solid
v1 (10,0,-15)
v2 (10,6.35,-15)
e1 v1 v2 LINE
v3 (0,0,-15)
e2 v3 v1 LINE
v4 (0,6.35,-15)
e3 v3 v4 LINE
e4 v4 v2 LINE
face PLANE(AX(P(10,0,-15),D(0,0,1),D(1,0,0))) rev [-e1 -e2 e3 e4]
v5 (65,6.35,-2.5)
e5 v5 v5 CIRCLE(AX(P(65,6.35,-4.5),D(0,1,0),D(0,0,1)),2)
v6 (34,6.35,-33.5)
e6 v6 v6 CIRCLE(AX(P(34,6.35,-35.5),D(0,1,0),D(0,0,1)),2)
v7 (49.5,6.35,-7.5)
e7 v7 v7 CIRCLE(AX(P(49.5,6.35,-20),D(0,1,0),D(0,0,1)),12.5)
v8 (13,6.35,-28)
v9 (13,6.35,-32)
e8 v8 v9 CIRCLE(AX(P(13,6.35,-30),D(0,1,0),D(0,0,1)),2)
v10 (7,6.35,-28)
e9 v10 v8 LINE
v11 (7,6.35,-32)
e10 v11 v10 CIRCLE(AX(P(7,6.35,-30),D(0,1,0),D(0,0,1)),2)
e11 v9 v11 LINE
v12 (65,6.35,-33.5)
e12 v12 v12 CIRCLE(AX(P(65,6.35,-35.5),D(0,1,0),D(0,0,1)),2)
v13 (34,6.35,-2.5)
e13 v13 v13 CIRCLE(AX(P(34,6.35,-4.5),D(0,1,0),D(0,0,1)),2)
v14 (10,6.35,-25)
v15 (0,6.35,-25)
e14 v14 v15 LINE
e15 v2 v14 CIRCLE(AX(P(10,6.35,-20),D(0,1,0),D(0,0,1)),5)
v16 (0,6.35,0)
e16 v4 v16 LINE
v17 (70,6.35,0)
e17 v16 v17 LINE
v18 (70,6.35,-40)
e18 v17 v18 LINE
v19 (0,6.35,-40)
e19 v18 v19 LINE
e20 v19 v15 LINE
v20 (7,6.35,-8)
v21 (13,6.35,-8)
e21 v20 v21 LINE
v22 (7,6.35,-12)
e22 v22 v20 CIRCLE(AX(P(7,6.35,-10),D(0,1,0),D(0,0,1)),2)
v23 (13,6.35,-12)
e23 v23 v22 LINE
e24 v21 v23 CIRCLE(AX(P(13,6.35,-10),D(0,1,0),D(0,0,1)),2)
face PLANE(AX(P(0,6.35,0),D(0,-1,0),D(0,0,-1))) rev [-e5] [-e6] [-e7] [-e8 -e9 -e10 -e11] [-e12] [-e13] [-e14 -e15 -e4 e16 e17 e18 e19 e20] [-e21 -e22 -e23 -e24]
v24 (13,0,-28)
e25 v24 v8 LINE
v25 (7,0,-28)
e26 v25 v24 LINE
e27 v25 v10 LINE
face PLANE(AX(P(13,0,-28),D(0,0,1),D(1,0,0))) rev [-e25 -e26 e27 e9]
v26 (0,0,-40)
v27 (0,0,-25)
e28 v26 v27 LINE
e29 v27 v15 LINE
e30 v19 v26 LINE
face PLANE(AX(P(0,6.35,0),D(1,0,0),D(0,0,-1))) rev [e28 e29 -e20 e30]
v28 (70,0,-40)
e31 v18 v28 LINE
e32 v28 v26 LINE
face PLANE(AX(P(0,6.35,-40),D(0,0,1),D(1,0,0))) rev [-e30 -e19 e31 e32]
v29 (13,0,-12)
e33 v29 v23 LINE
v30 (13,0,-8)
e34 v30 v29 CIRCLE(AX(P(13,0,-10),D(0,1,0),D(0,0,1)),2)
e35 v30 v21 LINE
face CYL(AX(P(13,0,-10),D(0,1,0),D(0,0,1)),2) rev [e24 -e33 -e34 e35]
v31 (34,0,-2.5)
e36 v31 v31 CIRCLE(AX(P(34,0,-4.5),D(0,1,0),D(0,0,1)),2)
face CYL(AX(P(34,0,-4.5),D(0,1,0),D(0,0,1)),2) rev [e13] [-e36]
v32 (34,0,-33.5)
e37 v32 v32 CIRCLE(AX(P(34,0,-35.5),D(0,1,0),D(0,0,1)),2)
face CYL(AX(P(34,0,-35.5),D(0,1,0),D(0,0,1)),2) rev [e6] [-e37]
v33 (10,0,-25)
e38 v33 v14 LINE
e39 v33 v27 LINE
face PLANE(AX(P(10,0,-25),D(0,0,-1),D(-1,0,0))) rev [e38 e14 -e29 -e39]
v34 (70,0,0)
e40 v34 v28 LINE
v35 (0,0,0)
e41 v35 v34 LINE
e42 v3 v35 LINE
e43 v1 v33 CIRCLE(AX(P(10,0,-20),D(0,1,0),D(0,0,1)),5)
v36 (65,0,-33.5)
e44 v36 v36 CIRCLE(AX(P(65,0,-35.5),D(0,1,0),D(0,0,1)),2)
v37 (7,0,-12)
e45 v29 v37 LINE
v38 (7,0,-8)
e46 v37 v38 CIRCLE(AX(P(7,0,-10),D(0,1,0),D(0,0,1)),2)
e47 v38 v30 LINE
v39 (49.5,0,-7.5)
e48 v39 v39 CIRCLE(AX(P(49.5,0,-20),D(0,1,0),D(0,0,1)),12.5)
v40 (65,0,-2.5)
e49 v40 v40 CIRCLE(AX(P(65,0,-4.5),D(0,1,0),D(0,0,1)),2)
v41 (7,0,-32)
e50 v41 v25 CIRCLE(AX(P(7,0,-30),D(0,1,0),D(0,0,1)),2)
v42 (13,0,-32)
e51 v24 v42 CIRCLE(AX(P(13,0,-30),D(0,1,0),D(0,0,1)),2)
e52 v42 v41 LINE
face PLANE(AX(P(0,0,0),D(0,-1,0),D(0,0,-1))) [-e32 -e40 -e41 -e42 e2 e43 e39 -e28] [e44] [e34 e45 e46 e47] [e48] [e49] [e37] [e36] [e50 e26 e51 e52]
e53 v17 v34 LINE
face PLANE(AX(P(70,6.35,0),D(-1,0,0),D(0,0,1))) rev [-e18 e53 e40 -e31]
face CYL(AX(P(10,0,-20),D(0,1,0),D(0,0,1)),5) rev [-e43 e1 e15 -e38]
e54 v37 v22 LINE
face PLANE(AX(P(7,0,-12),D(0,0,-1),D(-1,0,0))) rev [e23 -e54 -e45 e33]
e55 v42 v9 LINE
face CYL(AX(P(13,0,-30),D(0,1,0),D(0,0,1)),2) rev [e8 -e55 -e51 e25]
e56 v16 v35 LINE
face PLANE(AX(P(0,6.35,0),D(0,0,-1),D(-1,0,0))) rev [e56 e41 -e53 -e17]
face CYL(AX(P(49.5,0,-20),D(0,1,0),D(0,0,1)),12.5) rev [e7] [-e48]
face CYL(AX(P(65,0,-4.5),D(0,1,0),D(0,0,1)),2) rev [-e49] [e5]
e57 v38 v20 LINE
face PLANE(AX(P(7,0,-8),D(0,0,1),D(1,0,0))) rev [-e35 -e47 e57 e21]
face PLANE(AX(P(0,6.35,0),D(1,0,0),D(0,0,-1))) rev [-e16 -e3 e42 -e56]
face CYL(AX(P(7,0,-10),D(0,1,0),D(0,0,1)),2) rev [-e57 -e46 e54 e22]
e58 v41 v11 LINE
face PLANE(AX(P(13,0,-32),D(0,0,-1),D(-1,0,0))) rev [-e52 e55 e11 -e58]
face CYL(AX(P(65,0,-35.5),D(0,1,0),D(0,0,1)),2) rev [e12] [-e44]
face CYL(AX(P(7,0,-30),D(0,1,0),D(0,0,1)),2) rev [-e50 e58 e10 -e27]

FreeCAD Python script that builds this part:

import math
import FreeCAD as App
import Part
import Sketcher
Q = App.Units.Quantity

doc = App.newDocument("Part")
body = doc.addObject("PartDesign::Body", "Body")

# Sketch on XZ plane
sketch1 = body.newObject("Sketcher::SketchObject", "Sketch")
sketch1.AttachmentSupport = (doc.getObject("XZ_Plane"), [""])
sketch1.MapMode = "FlatFace"
sketch1.addGeometry([
    Part.LineSegment(App.Vector(0, -40, 0), App.Vector(0, 0, 0)),
    Part.LineSegment(App.Vector(0, 0, 0), App.Vector(70, 0, 0)),
    Part.LineSegment(App.Vector(70, 0, 0), App.Vector(70, -40, 0)),
    Part.LineSegment(App.Vector(70, -40, 0), App.Vector(0, -40, 0)),
], False)
sketch1.addConstraint([
    Sketcher.Constraint("Coincident", 0, 2, 1, 1),
    Sketcher.Constraint("Coincident", 1, 2, 2, 1),
    Sketcher.Constraint("Coincident", 2, 2, 3, 1),
    Sketcher.Constraint("Coincident", 3, 2, 0, 1),
    Sketcher.Constraint("Vertical", 0),
    Sketcher.Constraint("Horizontal", 1),
    Sketcher.Constraint("Vertical", 2),
    Sketcher.Constraint("Horizontal", 3),
    Sketcher.Constraint("Coincident", 0, 2, -1, 1),
    Sketcher.Constraint("DistanceX", 1, 1, 1, 2, Q("70 mm")),
    Sketcher.Constraint("DistanceY", 0, 1, 0, 2, Q("40 mm")),
])
pad1 = body.newObject("PartDesign::Pad", "Pad")
pad1.Profile = sketch1
pad1.Length = 6.35
pad1.Reversed = True

# Sketch on XZ plane
sketch2 = body.newObject("Sketcher::SketchObject", "Sketch001")
sketch2.AttachmentSupport = (doc.getObject("XZ_Plane"), [""])
sketch2.MapMode = "FlatFace"
sketch2.AttachmentOffset = App.Placement(App.Vector(0, 0, -6.35), App.Rotation())
sketch2.addGeometry([
    Part.Circle(App.Vector(49.5, -20, 0), App.Vector(0, 0, 1), 12.5),  # 0
    Part.Circle(App.Vector(34, -35.5, 0), App.Vector(0, 0, 1), 2),  # 1
    Part.Circle(App.Vector(65, -35.5, 0), App.Vector(0, 0, 1), 2),  # 2
    Part.Circle(App.Vector(65, -4.5, 0), App.Vector(0, 0, 1), 2),  # 3
    Part.Circle(App.Vector(34, -4.5, 0), App.Vector(0, 0, 1), 2),  # 4
    Part.LineSegment(App.Vector(10, -25, 0), App.Vector(0, -25, 0)),  # 5
    Part.LineSegment(App.Vector(0, -25, 0), App.Vector(0, -15, 0)),  # 6
    Part.LineSegment(App.Vector(0, -15, 0), App.Vector(10, -15, 0)),  # 7
    Part.ArcOfCircle(Part.Circle(App.Vector(10, -20, 0), App.Vector(0, 0, 1), 5), math.radians(-90), math.radians(90)),  # 8
    Part.LineSegment(App.Vector(7, -28, 0), App.Vector(13, -28, 0)),  # 9
    Part.ArcOfCircle(Part.Circle(App.Vector(13, -30, 0), App.Vector(0, 0, 1), 2), math.radians(-90), math.radians(90)),  # 10
    Part.LineSegment(App.Vector(13, -32, 0), App.Vector(7, -32, 0)),  # 11
    Part.ArcOfCircle(Part.Circle(App.Vector(7, -30, 0), App.Vector(0, 0, 1), 2), math.radians(90), math.radians(270)),  # 12
    Part.LineSegment(App.Vector(13, -12, 0), App.Vector(7, -12, 0)),  # 13
    Part.ArcOfCircle(Part.Circle(App.Vector(7, -10, 0), App.Vector(0, 0, 1), 2), math.radians(90), math.radians(270)),  # 14
    Part.LineSegment(App.Vector(7, -8, 0), App.Vector(13, -8, 0)),  # 15
    Part.ArcOfCircle(Part.Circle(App.Vector(13, -10, 0), App.Vector(0, 0, 1), 2), math.radians(-90), math.radians(90)),  # 16
], False)
sketch2.addConstraint([
    Sketcher.Constraint("Coincident", 5, 2, 6, 1),
    Sketcher.Constraint("Coincident", 6, 2, 7, 1),
    Sketcher.Constraint("Tangent", 7, 2, 8, 2),
    Sketcher.Constraint("Tangent", 8, 1, 5, 1),
    Sketcher.Constraint("Tangent", 9, 2, 10, 2),
    Sketcher.Constraint("Tangent", 10, 1, 11, 1),
    Sketcher.Constraint("Tangent", 11, 2, 12, 2),
    Sketcher.Constraint("Tangent", 12, 1, 9, 1),
    Sketcher.Constraint("Tangent", 13, 2, 14, 2),
    Sketcher.Constraint("Tangent", 14, 1, 15, 1),
    Sketcher.Constraint("Tangent", 15, 2, 16, 2),
    Sketcher.Constraint("Tangent", 16, 1, 13, 1),
    Sketcher.Constraint("Horizontal", 5),
    Sketcher.Constraint("Vertical", 6),
    Sketcher.Constraint("Horizontal", 7),
    Sketcher.Constraint("Horizontal", 9),
    Sketcher.Constraint("Horizontal", 11),
    Sketcher.Constraint("Horizontal", 13),
    Sketcher.Constraint("Horizontal", 15),
    Sketcher.Constraint("Equal", 1, 2),
    Sketcher.Constraint("Equal", 2, 3),
    Sketcher.Constraint("Equal", 3, 4),
    Sketcher.Constraint("Equal", 4, 10),
    Sketcher.Constraint("Equal", 12, 14),
    Sketcher.Constraint("PointOnObject", 5, 2, -2),
    Sketcher.Constraint("Horizontal", 1, 3, 2, 3),
    Sketcher.Constraint("Horizontal", 3, 3, 4, 3),
    Sketcher.Constraint("Horizontal", 0, 3, 8, 3),
    Sketcher.Constraint("Vertical", 2, 3, 3, 3),
    Sketcher.Constraint("Vertical", 1, 3, 4, 3),
    Sketcher.Constraint("Vertical", 12, 3, 14, 3),
    Sketcher.Constraint("Vertical", 10, 3, 16, 3),
    Sketcher.Constraint("Equal", 7, 6),
    Sketcher.Constraint("Diameter", 0, Q("25 mm")),
    Sketcher.Constraint("Diameter", 1, Q("4 mm")),
    Sketcher.Constraint("Radius", 8, Q("5 mm")),
    Sketcher.Constraint("DistanceX", 9, 1, 9, 2, Q("6 mm")),
    Sketcher.Constraint("DistanceY", 0, 3, -1, 1, Q("20 mm")),
    Sketcher.Constraint("DistanceX", -1, 1, 1, 3, Q("34 mm")),
    Sketcher.Constraint("DistanceX", -1, 1, 2, 3, Q("65 mm")),
    Sketcher.Constraint("DistanceX", -1, 1, 10, 3, Q("13 mm")),
    Sketcher.Constraint("DistanceY", 10, 3, -1, 1, Q("30 mm")),
    Sketcher.Constraint("DistanceY", 14, 3, -1, 1, Q("10 mm")),
    Sketcher.Constraint("DistanceY", 2, 3, 3, 3, Q("31 mm")),
    Sketcher.Constraint("DistanceX", -1, 1, 0, 3, Q("49.5 mm")),
    Sketcher.Constraint("DistanceY", 1, 3, -1, 1, Q("35.5 mm")),
])
pocket1 = body.newObject("PartDesign::Pocket", "Pocket")
pocket1.Profile = sketch2
pocket1.Type = "ThroughAll"
pocket1.Reversed = True

doc.recompute()
